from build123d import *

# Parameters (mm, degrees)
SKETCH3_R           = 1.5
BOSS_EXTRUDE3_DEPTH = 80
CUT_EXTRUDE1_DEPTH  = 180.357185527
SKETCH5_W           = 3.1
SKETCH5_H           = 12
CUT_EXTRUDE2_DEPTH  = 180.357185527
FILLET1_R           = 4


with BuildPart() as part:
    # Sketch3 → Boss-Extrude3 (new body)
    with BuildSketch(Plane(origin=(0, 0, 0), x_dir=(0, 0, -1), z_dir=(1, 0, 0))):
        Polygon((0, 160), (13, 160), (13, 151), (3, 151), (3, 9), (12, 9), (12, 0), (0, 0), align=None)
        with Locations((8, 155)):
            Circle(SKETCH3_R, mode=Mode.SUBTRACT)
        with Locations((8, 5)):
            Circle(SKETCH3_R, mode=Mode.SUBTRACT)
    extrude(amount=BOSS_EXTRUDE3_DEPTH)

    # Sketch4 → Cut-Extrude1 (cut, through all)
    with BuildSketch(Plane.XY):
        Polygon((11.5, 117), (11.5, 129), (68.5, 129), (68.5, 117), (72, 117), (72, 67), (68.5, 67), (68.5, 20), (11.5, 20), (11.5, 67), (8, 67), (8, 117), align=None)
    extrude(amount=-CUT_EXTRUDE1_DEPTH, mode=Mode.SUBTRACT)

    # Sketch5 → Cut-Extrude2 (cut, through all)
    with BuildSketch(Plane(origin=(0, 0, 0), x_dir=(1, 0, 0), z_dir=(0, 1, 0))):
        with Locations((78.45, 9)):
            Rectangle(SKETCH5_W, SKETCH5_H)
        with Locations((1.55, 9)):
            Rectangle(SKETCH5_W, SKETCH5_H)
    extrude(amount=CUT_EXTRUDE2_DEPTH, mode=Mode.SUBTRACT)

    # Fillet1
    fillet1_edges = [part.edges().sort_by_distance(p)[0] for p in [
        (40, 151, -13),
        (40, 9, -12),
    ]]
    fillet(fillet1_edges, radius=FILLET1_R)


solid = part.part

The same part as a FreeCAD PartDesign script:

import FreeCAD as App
import Part
import Sketcher
Q = App.Units.Quantity


def edges_at(feature, points):
    """Names of the edges that pass closest to the given points."""
    edges = feature.Shape.Edges
    near = lambda p: min(range(len(edges)), key=lambda i: edges[i].distToShape(Part.Vertex(*p))[0])
    return sorted({f"Edge{near(p) + 1}" for p in points})


def add_polygon(sketch, points):
    """Adds a closed chain of lines whose ends are joined by coincident constraints."""
    first, n = sketch.GeometryCount, len(points)
    for a, b in zip(points, points[1:] + points[:1]):
        sketch.addGeometry(Part.LineSegment(App.Vector(*a, 0), App.Vector(*b, 0)), False)
    for i in range(n):
        sketch.addConstraint(Sketcher.Constraint("Coincident", first + i, 2, first + (i + 1) % n, 1))

doc = App.newDocument("Part")
body = doc.addObject("PartDesign::Body", "Body")

# Sketch on YZ plane
sketch1 = body.newObject("Sketcher::SketchObject", "Sketch")
sketch1.AttachmentSupport = (doc.getObject("YZ_Plane"), [""])
sketch1.MapMode = "FlatFace"
add_polygon(sketch1, [(160, -13), (160, 0), (0, 0), (0, -12), (9, -12), (9, -3), (151, -3), (151, -13)])  # lines 0-7
sketch1.addGeometry(Part.Circle(App.Vector(5, -8, 0), App.Vector(0, 0, 1), 1.5), False)  # 8
sketch1.addGeometry(Part.Circle(App.Vector(155, -8, 0), App.Vector(0, 0, 1), 1.5), False)  # 9
sketch1.addConstraint(Sketcher.Constraint("Vertical", 0))
sketch1.addConstraint(Sketcher.Constraint("Horizontal", 1))
sketch1.addConstraint(Sketcher.Constraint("Vertical", 2))
sketch1.addConstraint(Sketcher.Constraint("Horizontal", 3))
sketch1.addConstraint(Sketcher.Constraint("Vertical", 4))
sketch1.addConstraint(Sketcher.Constraint("Horizontal", 5))
sketch1.addConstraint(Sketcher.Constraint("Vertical", 6))
sketch1.addConstraint(Sketcher.Constraint("Horizontal", 7))
sketch1.addConstraint(Sketcher.Constraint("Coincident", 1, 2, -1, 1))
sketch1.addConstraint(Sketcher.Constraint("Equal", 8, 9))
sketch1.addConstraint(Sketcher.Constraint("Horizontal", 8, 3, 9, 3))
sketch1.addConstraint(Sketcher.Constraint("Equal", 3, 7))
sketch1.addConstraint(Sketcher.Constraint("Equal", 7, 4))
sketch1.addConstraint(Sketcher.Constraint("Diameter", 8, Q("3 mm")))
sketch1.addConstraint(Sketcher.Constraint("DistanceX", 1, 2, 1, 1, Q("160 mm")))
sketch1.addConstraint(Sketcher.Constraint("DistanceX", 3, 1, 3, 2, Q("9 mm")))
sketch1.addConstraint(Sketcher.Constraint("DistanceY", 0, 1, 0, 2, Q("13 mm")))
sketch1.addConstraint(Sketcher.Constraint("DistanceY", 2, 2, 2, 1, Q("12 mm")))
sketch1.addConstraint(Sketcher.Constraint("DistanceX", -1, 1, 8, 3, Q("5 mm")))
sketch1.addConstraint(Sketcher.Constraint("DistanceY", 8, 3, -1, 1, Q("8 mm")))
sketch1.addConstraint(Sketcher.Constraint("DistanceX", -1, 1, 9, 3, Q("155 mm")))
pad1 = body.newObject("PartDesign::Pad", "Pad")
pad1.Profile = sketch1
pad1.Length = 80

# Sketch on XY plane
sketch2 = body.newObject("Sketcher::SketchObject", "Sketch001")
sketch2.AttachmentSupport = (doc.getObject("XY_Plane"), [""])
sketch2.MapMode = "FlatFace"
add_polygon(sketch2, [(11.5, 129), (11.5, 117), (8, 117), (8, 67), (11.5, 67), (11.5, 20), (68.5, 20), (68.5, 67), (72, 67), (72, 117), (68.5, 117), (68.5, 129)])  # lines 0-11
sketch2.addConstraint(Sketcher.Constraint("Vertical", 0))
sketch2.addConstraint(Sketcher.Constraint("Horizontal", 1))
sketch2.addConstraint(Sketcher.Constraint("Vertical", 2))
sketch2.addConstraint(Sketcher.Constraint("Horizontal", 3))
sketch2.addConstraint(Sketcher.Constraint("Vertical", 4))
sketch2.addConstraint(Sketcher.Constraint("Horizontal", 5))
sketch2.addConstraint(Sketcher.Constraint("Vertical", 6))
sketch2.addConstraint(Sketcher.Constraint("Horizontal", 7))
sketch2.addConstraint(Sketcher.Constraint("Vertical", 8))
sketch2.addConstraint(Sketcher.Constraint("Horizontal", 9))
sketch2.addConstraint(Sketcher.Constraint("Vertical", 10))
sketch2.addConstraint(Sketcher.Constraint("Horizontal", 11))
sketch2.addConstraint(Sketcher.Constraint("Horizontal", 3, 2, 6, 2))
sketch2.addConstraint(Sketcher.Constraint("Horizontal", 1, 2, 8, 2))
sketch2.addConstraint(Sketcher.Constraint("Vertical", 0, 2, 3, 2))
sketch2.addConstraint(Sketcher.Constraint("Vertical", 6, 2, 9, 2))
sketch2.addConstraint(Sketcher.Constraint("Equal", 3, 7))
sketch2.addConstraint(Sketcher.Constraint("DistanceX", 5, 1, 5, 2, Q("57 mm")))
sketch2.addConstraint(Sketcher.Constraint("DistanceY", 0, 2, 0, 1, Q("12 mm")))
sketch2.addConstraint(Sketcher.Constraint("DistanceY", 2, 2, 2, 1, Q("50 mm")))
sketch2.addConstraint(Sketcher.Constraint("DistanceY", 4, 2, 4, 1, Q("47 mm")))
sketch2.addConstraint(Sketcher.Constraint("DistanceX", 1, 2, 1, 1, Q("3.5 mm")))
sketch2.addConstraint(Sketcher.Constraint("DistanceY", -1, 1, 0, 2, Q("117 mm")))
sketch2.addConstraint(Sketcher.Constraint("DistanceX", -1, 1, 1, 2, Q("8 mm")))
pocket1 = body.newObject("PartDesign::Pocket", "Pocket")
pocket1.Profile = sketch2
pocket1.Type = "ThroughAll"

# Sketch on XZ plane
sketch3 = body.newObject("Sketcher::SketchObject", "Sketch002")
sketch3.AttachmentSupport = (doc.getObject("XZ_Plane"), [""])
sketch3.MapMode = "FlatFace"
add_polygon(sketch3, [(76.9, -15), (76.9, -3), (80, -3), (80, -15)])  # lines 0-3
add_polygon(sketch3, [(0, -15), (0, -3), (3.1, -3), (3.1, -15)])  # lines 4-7
sketch3.addConstraint(Sketcher.Constraint("Vertical", 0))
sketch3.addConstraint(Sketcher.Constraint("Horizontal", 1))
sketch3.addConstraint(Sketcher.Constraint("Vertical", 2))
sketch3.addConstraint(Sketcher.Constraint("Horizontal", 3))
sketch3.addConstraint(Sketcher.Constraint("Vertical", 4))
sketch3.addConstraint(Sketcher.Constraint("Horizontal", 5))
sketch3.addConstraint(Sketcher.Constraint("Vertical", 6))
sketch3.addConstraint(Sketcher.Constraint("Horizontal", 7))
sketch3.addConstraint(Sketcher.Constraint("PointOnObject", 4, 2, -2))
sketch3.addConstraint(Sketcher.Constraint("Horizontal", 1, 2, 4, 2))
sketch3.addConstraint(Sketcher.Constraint("Horizontal", 3, 2, 6, 2))
sketch3.addConstraint(Sketcher.Constraint("Equal", 3, 5))
sketch3.addConstraint(Sketcher.Constraint("DistanceY", 0, 1, 0, 2, Q("12 mm")))
sketch3.addConstraint(Sketcher.Constraint("DistanceX", 1, 1, 1, 2, Q("3.1 mm")))
sketch3.addConstraint(Sketcher.Constraint("DistanceY", 0, 2, -1, 1, Q("3 mm")))
sketch3.addConstraint(Sketcher.Constraint("DistanceX", -1, 1, 1, 2, Q("80 mm")))
pocket2 = body.newObject("PartDesign::Pocket", "Pocket001")
pocket2.Profile = sketch3
pocket2.Type = "ThroughAll"
doc.recompute()

fillet = body.newObject("PartDesign::Fillet", "Fillet")
fillet.Base = (pocket2, edges_at(pocket2, [(40, 151, -13), (40, 9, -12)]))
fillet.Radius = 4

doc.recompute()
